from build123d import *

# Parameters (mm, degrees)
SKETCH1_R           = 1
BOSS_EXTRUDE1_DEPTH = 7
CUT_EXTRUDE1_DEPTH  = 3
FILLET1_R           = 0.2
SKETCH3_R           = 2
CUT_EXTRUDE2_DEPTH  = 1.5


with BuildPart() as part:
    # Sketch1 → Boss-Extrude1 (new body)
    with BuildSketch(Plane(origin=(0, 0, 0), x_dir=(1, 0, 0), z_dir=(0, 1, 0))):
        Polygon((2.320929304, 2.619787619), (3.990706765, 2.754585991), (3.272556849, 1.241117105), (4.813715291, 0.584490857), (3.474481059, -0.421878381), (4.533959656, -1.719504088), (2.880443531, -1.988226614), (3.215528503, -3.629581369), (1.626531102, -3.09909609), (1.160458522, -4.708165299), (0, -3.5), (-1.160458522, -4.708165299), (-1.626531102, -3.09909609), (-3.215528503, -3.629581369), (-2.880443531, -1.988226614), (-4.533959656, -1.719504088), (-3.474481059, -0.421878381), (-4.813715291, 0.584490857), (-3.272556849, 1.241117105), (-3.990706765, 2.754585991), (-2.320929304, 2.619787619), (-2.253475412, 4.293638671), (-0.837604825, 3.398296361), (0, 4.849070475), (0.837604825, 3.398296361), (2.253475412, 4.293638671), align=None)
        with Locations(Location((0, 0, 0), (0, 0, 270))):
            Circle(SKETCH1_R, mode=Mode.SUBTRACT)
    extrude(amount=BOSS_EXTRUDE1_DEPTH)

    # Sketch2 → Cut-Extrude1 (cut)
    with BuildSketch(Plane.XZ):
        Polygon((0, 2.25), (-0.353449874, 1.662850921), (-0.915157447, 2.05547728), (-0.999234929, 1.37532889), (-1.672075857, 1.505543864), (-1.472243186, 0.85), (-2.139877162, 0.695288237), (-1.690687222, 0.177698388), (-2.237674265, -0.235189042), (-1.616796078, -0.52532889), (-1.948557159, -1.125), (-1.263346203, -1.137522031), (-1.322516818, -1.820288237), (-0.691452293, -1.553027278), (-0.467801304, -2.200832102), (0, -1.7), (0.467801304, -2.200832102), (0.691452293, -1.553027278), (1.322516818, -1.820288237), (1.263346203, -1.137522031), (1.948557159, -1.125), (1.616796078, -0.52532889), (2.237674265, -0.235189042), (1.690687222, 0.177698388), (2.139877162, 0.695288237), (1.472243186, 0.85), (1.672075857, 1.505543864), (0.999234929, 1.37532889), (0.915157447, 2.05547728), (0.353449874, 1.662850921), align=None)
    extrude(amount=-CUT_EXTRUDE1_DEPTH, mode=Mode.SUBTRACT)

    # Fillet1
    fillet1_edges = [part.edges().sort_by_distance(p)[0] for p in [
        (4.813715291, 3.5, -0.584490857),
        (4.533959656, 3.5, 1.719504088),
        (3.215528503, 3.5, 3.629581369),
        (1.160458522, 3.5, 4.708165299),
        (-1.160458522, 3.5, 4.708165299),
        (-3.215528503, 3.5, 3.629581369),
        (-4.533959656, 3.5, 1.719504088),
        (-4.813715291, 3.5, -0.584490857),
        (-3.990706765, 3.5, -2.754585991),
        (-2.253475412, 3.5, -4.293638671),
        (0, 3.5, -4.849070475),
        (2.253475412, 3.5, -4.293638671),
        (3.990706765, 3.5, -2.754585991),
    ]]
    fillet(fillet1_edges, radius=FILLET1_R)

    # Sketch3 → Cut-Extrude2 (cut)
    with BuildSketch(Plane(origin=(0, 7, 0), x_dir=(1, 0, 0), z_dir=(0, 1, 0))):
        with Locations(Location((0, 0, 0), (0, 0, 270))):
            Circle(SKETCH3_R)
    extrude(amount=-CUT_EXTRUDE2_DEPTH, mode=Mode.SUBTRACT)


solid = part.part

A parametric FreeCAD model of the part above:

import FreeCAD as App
import Part
import Sketcher

V = App.Vector
Q = App.Units.Quantity


def edges_at(feature, points):
    """Names of the edges that pass closest to the given points."""
    edges = feature.Shape.Edges
    near = lambda p: min(range(len(edges)), key=lambda i: edges[i].distToShape(Part.Vertex(*p))[0])
    return sorted({f"Edge{near(p) + 1}" for p in points})

doc = App.newDocument("Part")
params = doc.addObject("Spreadsheet::Sheet", "Params")
for row, (alias, value) in enumerate([
    ("sketch1_diameter", "2 mm"),
    ("pad1_length", "7 mm"),
    ("pocket1_length", "3 mm"),
    ("fillet_radius", "0.2 mm"),
    ("sketch3_diameter", "4 mm"),
    ("pocket2_length", "1.5 mm"),
], start=1):
    params.set(f"A{row}", alias)
    params.set(f"B{row}", "=" + value)
    params.setAlias(f"B{row}", alias)

body = doc.addObject("PartDesign::Body", "Body")

sketch1 = body.newObject("Sketcher::SketchObject", "Sketch")
sketch1.AttachmentSupport = (doc.getObject("XZ_Plane"), [""])
sketch1.MapMode = "FlatFace"
sketch1.addGeometry(Part.LineSegment(V(4, -2.8, 0), V(2.3, -2.6, 0)), False)
sketch1.addGeometry(Part.LineSegment(V(2.3, -2.6, 0), V(2.3, -4.3, 0)), False)
sketch1.addGeometry(Part.LineSegment(V(2.3, -4.3, 0), V(0.8, -3.4, 0)), False)
sketch1.addGeometry(Part.LineSegment(V(0.8, -3.4, 0), V(0, -4.8, 0)), False)
sketch1.addGeometry(Part.LineSegment(V(0, -4.8, 0), V(-0.8, -3.4, 0)), False)
sketch1.addGeometry(Part.LineSegment(V(-0.8, -3.4, 0), V(-2.3, -4.3, 0)), False)
sketch1.addGeometry(Part.LineSegment(V(-2.3, -4.3, 0), V(-2.3, -2.6, 0)), False)
sketch1.addGeometry(Part.LineSegment(V(-2.3, -2.6, 0), V(-4, -2.8, 0)), False)
sketch1.addGeometry(Part.LineSegment(V(-4, -2.8, 0), V(-3.3, -1.2, 0)), False)
sketch1.addGeometry(Part.LineSegment(V(-3.3, -1.2, 0), V(-4.8, -0.6, 0)), False)
sketch1.addGeometry(Part.LineSegment(V(-4.8, -0.6, 0), V(-3.5, 0.4, 0)), False)
sketch1.addGeometry(Part.LineSegment(V(-3.5, 0.4, 0), V(-4.5, 1.7, 0)), False)
sketch1.addGeometry(Part.LineSegment(V(-4.5, 1.7, 0), V(-2.9, 2, 0)), False)
sketch1.addGeometry(Part.LineSegment(V(-2.9, 2, 0), V(-3.2, 3.6, 0)), False)
sketch1.addGeometry(Part.LineSegment(V(-3.2, 3.6, 0), V(-1.6, 3.1, 0)), False)
sketch1.addGeometry(Part.LineSegment(V(-1.6, 3.1, 0), V(-1.2, 4.7, 0)), False)
sketch1.addGeometry(Part.LineSegment(V(-1.2, 4.7, 0), V(0, 3.5, 0)), False)
sketch1.addGeometry(Part.LineSegment(V(0, 3.5, 0), V(1.2, 4.7, 0)), False)
sketch1.addGeometry(Part.LineSegment(V(1.2, 4.7, 0), V(1.6, 3.1, 0)), False)
sketch1.addGeometry(Part.LineSegment(V(1.6, 3.1, 0), V(3.2, 3.6, 0)), False)
sketch1.addGeometry(Part.LineSegment(V(3.2, 3.6, 0), V(2.9, 2, 0)), False)
sketch1.addGeometry(Part.LineSegment(V(2.9, 2, 0), V(4.5, 1.7, 0)), False)
sketch1.addGeometry(Part.LineSegment(V(4.5, 1.7, 0), V(3.5, 0.4, 0)), False)
sketch1.addGeometry(Part.LineSegment(V(3.5, 0.4, 0), V(4.8, -0.6, 0)), False)
sketch1.addGeometry(Part.LineSegment(V(4.8, -0.6, 0), V(3.3, -1.2, 0)), False)
sketch1.addGeometry(Part.LineSegment(V(3.3, -1.2, 0), V(4, -2.8, 0)), False)
sketch1.addGeometry(Part.Circle(V(0, 0, 0), V(0, 0, 1), 1), False)
sketch1.addConstraint(Sketcher.Constraint("Coincident", 0, 2, 1, 1))
sketch1.addConstraint(Sketcher.Constraint("Coincident", 1, 2, 2, 1))
sketch1.addConstraint(Sketcher.Constraint("Coincident", 2, 2, 3, 1))
sketch1.addConstraint(Sketcher.Constraint("Coincident", 3, 2, 4, 1))
sketch1.addConstraint(Sketcher.Constraint("Coincident", 4, 2, 5, 1))
sketch1.addConstraint(Sketcher.Constraint("Coincident", 5, 2, 6, 1))
sketch1.addConstraint(Sketcher.Constraint("Coincident", 6, 2, 7, 1))
sketch1.addConstraint(Sketcher.Constraint("Coincident", 7, 2, 8, 1))
sketch1.addConstraint(Sketcher.Constraint("Coincident", 8, 2, 9, 1))
sketch1.addConstraint(Sketcher.Constraint("Coincident", 9, 2, 10, 1))
sketch1.addConstraint(Sketcher.Constraint("Coincident", 10, 2, 11, 1))
sketch1.addConstraint(Sketcher.Constraint("Coincident", 11, 2, 12, 1))
sketch1.addConstraint(Sketcher.Constraint("Coincident", 12, 2, 13, 1))
sketch1.addConstraint(Sketcher.Constraint("Coincident", 13, 2, 14, 1))
sketch1.addConstraint(Sketcher.Constraint("Coincident", 14, 2, 15, 1))
sketch1.addConstraint(Sketcher.Constraint("Coincident", 15, 2, 16, 1))
sketch1.addConstraint(Sketcher.Constraint("Coincident", 16, 2, 17, 1))
sketch1.addConstraint(Sketcher.Constraint("Coincident", 17, 2, 18, 1))
sketch1.addConstraint(Sketcher.Constraint("Coincident", 18, 2, 19, 1))
sketch1.addConstraint(Sketcher.Constraint("Coincident", 19, 2, 20, 1))
sketch1.addConstraint(Sketcher.Constraint("Coincident", 20, 2, 21, 1))
sketch1.addConstraint(Sketcher.Constraint("Coincident", 21, 2, 22, 1))
sketch1.addConstraint(Sketcher.Constraint("Coincident", 22, 2, 23, 1))
sketch1.addConstraint(Sketcher.Constraint("Coincident", 23, 2, 24, 1))
sketch1.addConstraint(Sketcher.Constraint("Coincident", 24, 2, 25, 1))
sketch1.addConstraint(Sketcher.Constraint("Coincident", 25, 2, 0, 1))
sketch1.addConstraint(Sketcher.Constraint("Coincident", 26, 3, -1, 1))
sketch1.addConstraint(Sketcher.Constraint("Symmetric", 2, 2, 4, 2, -2))
sketch1.addConstraint(Sketcher.Constraint("Symmetric", 1, 2, 5, 2, -2))
sketch1.addConstraint(Sketcher.Constraint("Symmetric", 0, 2, 6, 2, -2))
sketch1.addConstraint(Sketcher.Constraint("Symmetric", 15, 2, 17, 2, -2))
sketch1.addConstraint(Sketcher.Constraint("Symmetric", 14, 2, 18, 2, -2))
sketch1.addConstraint(Sketcher.Constraint("Symmetric", 13, 2, 19, 2, -2))
sketch1.addConstraint(Sketcher.Constraint("Symmetric", 12, 2, 20, 2, -2))
sketch1.addConstraint(Sketcher.Constraint("Symmetric", 11, 2, 21, 2, -2))
sketch1.addConstraint(Sketcher.Constraint("Symmetric", 10, 2, 22, 2, -2))
sketch1.addConstraint(Sketcher.Constraint("Symmetric", 9, 2, 23, 2, -2))
sketch1.addConstraint(Sketcher.Constraint("Symmetric", 8, 2, 24, 2, -2))
sketch1.addConstraint(Sketcher.Constraint("Symmetric", 7, 2, 25, 2, -2))
sketch1.addConstraint(Sketcher.Constraint("PointOnObject", 3, 2, -2))
sketch1.addConstraint(Sketcher.Constraint("PointOnObject", 16, 2, -2))
sketch1.addConstraint(Sketcher.Constraint("Equal", 0, 1))
sketch1.addConstraint(Sketcher.Constraint("Equal", 1, 2))
sketch1.addConstraint(Sketcher.Constraint("Equal", 2, 3))
sketch1.addConstraint(Sketcher.Constraint("Equal", 7, 8))
sketch1.addConstraint(Sketcher.Constraint("Equal", 8, 9))
sketch1.addConstraint(Sketcher.Constraint("Equal", 9, 10))
sketch1.addConstraint(Sketcher.Constraint("Equal", 10, 11))
sketch1.addConstraint(Sketcher.Constraint("Equal", 11, 12))
sketch1.addConstraint(Sketcher.Constraint("Equal", 12, 13))
sketch1.addConstraint(Sketcher.Constraint("Equal", 13, 14))
sketch1.addConstraint(Sketcher.Constraint("Equal", 14, 15))
sketch1.addConstraint(Sketcher.Constraint("Equal", 15, 16))
sketch1.addConstraint(Sketcher.Constraint("Diameter", 26, Q("2 mm")))
sketch1.addConstraint(Sketcher.Constraint("Angle", 3, Q("-120 deg")))
sketch1.addConstraint(Sketcher.Constraint("DistanceY", -1, 1, 16, 2, Q("3.5 mm")))
sketch1.addConstraint(Sketcher.Constraint("DistanceY", 7, 2, 6, 2, Q("0.134798 mm")))
sketch1.addConstraint(Sketcher.Constraint("DistanceX", 7, 2, 4, 2, Q("3.153102 mm")))
sketch1.addConstraint(Sketcher.Constraint("DistanceX", 11, 2, 15, 2, Q("3.373501 mm")))
sketch1.addConstraint(Sketcher.Constraint("Distance", 0, Q("1.67521 mm")))
sketch1.addConstraint(Sketcher.Constraint("DistanceY", 1, 2, -1, 1, Q("4.293639 mm")))
sketch1.addConstraint(Sketcher.Constraint("DistanceY", 3, 2, -1, 1, Q("4.84907 mm")))
sketch1.addConstraint(Sketcher.Constraint("DistanceY", 9, 2, -1, 1, Q("0.584491 mm")))
sketch1.addConstraint(Sketcher.Constraint("DistanceX", 10, 2, -1, 1, Q("3.474481 mm")))
sketch1.addConstraint(Sketcher.Constraint("DistanceY", -1, 1, 10, 2, Q("0.421878 mm")))
sketch1.addConstraint(Sketcher.Constraint("DistanceX", 11, 2, -1, 1, Q("4.53396 mm")))
sketch1.addConstraint(Sketcher.Constraint("DistanceX", 13, 2, -1, 1, Q("3.215529 mm")))
sketch1.addConstraint(Sketcher.Constraint("DistanceY", -1, 1, 13, 2, Q("3.629581 mm")))
sketch1.setExpression("Constraints[53]", "Params.sketch1_diameter")
pad1 = body.newObject("PartDesign::Pad", "Pad")
pad1.Profile = sketch1
pad1.setExpression("Length", "Params.pad1_length")
pad1.Reversed = True

sketch2 = body.newObject("Sketcher::SketchObject", "Sketch001")
sketch2.AttachmentSupport = (doc.getObject("XZ_Plane"), [""])
sketch2.MapMode = "FlatFace"
sketch2.addGeometry(Part.LineSegment(V(0, 2.2, 0), V(-0.4, 1.7, 0)), False)
sketch2.addGeometry(Part.LineSegment(V(-0.4, 1.7, 0), V(-0.9, 2.1, 0)), False)
sketch2.addGeometry(Part.LineSegment(V(-0.9, 2.1, 0), V(-1, 1.4, 0)), False)
sketch2.addGeometry(Part.LineSegment(V(-1, 1.4, 0), V(-1.7, 1.5, 0)), False)
sketch2.addGeometry(Part.LineSegment(V(-1.7, 1.5, 0), V(-1.5, 0.8, 0)), False)
sketch2.addGeometry(Part.LineSegment(V(-1.5, 0.8, 0), V(-2.1, 0.7, 0)), False)
sketch2.addGeometry(Part.LineSegment(V(-2.1, 0.7, 0), V(-1.7, 0.2, 0)), False)
sketch2.addGeometry(Part.LineSegment(V(-1.7, 0.2, 0), V(-2.2, -0.2, 0)), False)
sketch2.addGeometry(Part.LineSegment(V(-2.2, -0.2, 0), V(-1.6, -0.5, 0)), False)
sketch2.addGeometry(Part.LineSegment(V(-1.6, -0.5, 0), V(-1.9, -1.1, 0)), False)
sketch2.addGeometry(Part.LineSegment(V(-1.9, -1.1, 0), V(-1.3, -1.1, 0)), False)
sketch2.addGeometry(Part.LineSegment(V(-1.3, -1.1, 0), V(-1.3, -1.8, 0)), False)
sketch2.addGeometry(Part.LineSegment(V(-1.3, -1.8, 0), V(-0.7, -1.6, 0)), False)
sketch2.addGeometry(Part.LineSegment(V(-0.7, -1.6, 0), V(-0.5, -2.2, 0)), False)
sketch2.addGeometry(Part.LineSegment(V(-0.5, -2.2, 0), V(0, -1.7, 0)), False)
sketch2.addGeometry(Part.LineSegment(V(0, -1.7, 0), V(0.5, -2.2, 0)), False)
sketch2.addGeometry(Part.LineSegment(V(0.5, -2.2, 0), V(0.7, -1.6, 0)), False)
sketch2.addGeometry(Part.LineSegment(V(0.7, -1.6, 0), V(1.3, -1.8, 0)), False)
sketch2.addGeometry(Part.LineSegment(V(1.3, -1.8, 0), V(1.3, -1.1, 0)), False)
sketch2.addGeometry(Part.LineSegment(V(1.3, -1.1, 0), V(1.9, -1.1, 0)), False)
sketch2.addGeometry(Part.LineSegment(V(1.9, -1.1, 0), V(1.6, -0.5, 0)), False)
sketch2.addGeometry(Part.LineSegment(V(1.6, -0.5, 0), V(2.2, -0.2, 0)), False)
sketch2.addGeometry(Part.LineSegment(V(2.2, -0.2, 0), V(1.7, 0.2, 0)), False)
sketch2.addGeometry(Part.LineSegment(V(1.7, 0.2, 0), V(2.1, 0.7, 0)), False)
sketch2.addGeometry(Part.LineSegment(V(2.1, 0.7, 0), V(1.5, 0.8, 0)), False)
sketch2.addGeometry(Part.LineSegment(V(1.5, 0.8, 0), V(1.7, 1.5, 0)), False)
sketch2.addGeometry(Part.LineSegment(V(1.7, 1.5, 0), V(1, 1.4, 0)), False)
sketch2.addGeometry(Part.LineSegment(V(1, 1.4, 0), V(0.9, 2.1, 0)), False)
sketch2.addGeometry(Part.LineSegment(V(0.9, 2.1, 0), V(0.4, 1.7, 0)), False)
sketch2.addGeometry(Part.LineSegment(V(0.4, 1.7, 0), V(0, 2.2, 0)), False)
sketch2.addConstraint(Sketcher.Constraint("Coincident", 0, 2, 1, 1))
sketch2.addConstraint(Sketcher.Constraint("Coincident", 1, 2, 2, 1))
sketch2.addConstraint(Sketcher.Constraint("Coincident", 2, 2, 3, 1))
sketch2.addConstraint(Sketcher.Constraint("Coincident", 3, 2, 4, 1))
sketch2.addConstraint(Sketcher.Constraint("Coincident", 4, 2, 5, 1))
sketch2.addConstraint(Sketcher.Constraint("Coincident", 5, 2, 6, 1))
sketch2.addConstraint(Sketcher.Constraint("Coincident", 6, 2, 7, 1))
sketch2.addConstraint(Sketcher.Constraint("Coincident", 7, 2, 8, 1))
sketch2.addConstraint(Sketcher.Constraint("Coincident", 8, 2, 9, 1))
sketch2.addConstraint(Sketcher.Constraint("Coincident", 9, 2, 10, 1))
sketch2.addConstraint(Sketcher.Constraint("Coincident", 10, 2, 11, 1))
sketch2.addConstraint(Sketcher.Constraint("Coincident", 11, 2, 12, 1))
sketch2.addConstraint(Sketcher.Constraint("Coincident", 12, 2, 13, 1))
sketch2.addConstraint(Sketcher.Constraint("Coincident", 13, 2, 14, 1))
sketch2.addConstraint(Sketcher.Constraint("Coincident", 14, 2, 15, 1))
sketch2.addConstraint(Sketcher.Constraint("Coincident", 15, 2, 16, 1))
sketch2.addConstraint(Sketcher.Constraint("Coincident", 16, 2, 17, 1))
sketch2.addConstraint(Sketcher.Constraint("Coincident", 17, 2, 18, 1))
sketch2.addConstraint(Sketcher.Constraint("Coincident", 18, 2, 19, 1))
sketch2.addConstraint(Sketcher.Constraint("Coincident", 19, 2, 20, 1))
sketch2.addConstraint(Sketcher.Constraint("Coincident", 20, 2, 21, 1))
sketch2.addConstraint(Sketcher.Constraint("Coincident", 21, 2, 22, 1))
sketch2.addConstraint(Sketcher.Constraint("Coincident", 22, 2, 23, 1))
sketch2.addConstraint(Sketcher.Constraint("Coincident", 23, 2, 24, 1))
sketch2.addConstraint(Sketcher.Constraint("Coincident", 24, 2, 25, 1))
sketch2.addConstraint(Sketcher.Constraint("Coincident", 25, 2, 26, 1))
sketch2.addConstraint(Sketcher.Constraint("Coincident", 26, 2, 27, 1))
sketch2.addConstraint(Sketcher.Constraint("Coincident", 27, 2, 28, 1))
sketch2.addConstraint(Sketcher.Constraint("Coincident", 28, 2, 29, 1))
sketch2.addConstraint(Sketcher.Constraint("Coincident", 29, 2, 0, 1))
sketch2.addConstraint(Sketcher.Constraint("Symmetric", 13, 2, 15, 2, -2))
sketch2.addConstraint(Sketcher.Constraint("Symmetric", 12, 2, 16, 2, -2))
sketch2.addConstraint(Sketcher.Constraint("Symmetric", 11, 2, 17, 2, -2))
sketch2.addConstraint(Sketcher.Constraint("Symmetric", 10, 2, 18, 2, -2))
sketch2.addConstraint(Sketcher.Constraint("Symmetric", 9, 2, 19, 2, -2))
sketch2.addConstraint(Sketcher.Constraint("Symmetric", 8, 2, 20, 2, -2))
sketch2.addConstraint(Sketcher.Constraint("Symmetric", 7, 2, 21, 2, -2))
sketch2.addConstraint(Sketcher.Constraint("Symmetric", 6, 2, 22, 2, -2))
sketch2.addConstraint(Sketcher.Constraint("Symmetric", 5, 2, 23, 2, -2))
sketch2.addConstraint(Sketcher.Constraint("Symmetric", 4, 2, 24, 2, -2))
sketch2.addConstraint(Sketcher.Constraint("Symmetric", 3, 2, 25, 2, -2))
sketch2.addConstraint(Sketcher.Constraint("Symmetric", 2, 2, 26, 2, -2))
sketch2.addConstraint(Sketcher.Constraint("Symmetric", 1, 2, 27, 2, -2))
sketch2.addConstraint(Sketcher.Constraint("Symmetric", 0, 2, 28, 2, -2))
sketch2.addConstraint(Sketcher.Constraint("PointOnObject", 14, 2, -2))
sketch2.addConstraint(Sketcher.Constraint("PointOnObject", 29, 2, -2))
sketch2.addConstraint(Sketcher.Constraint("Equal", 0, 1))
sketch2.addConstraint(Sketcher.Constraint("Equal", 1, 2))
sketch2.addConstraint(Sketcher.Constraint("Equal", 2, 3))
sketch2.addConstraint(Sketcher.Constraint("Equal", 3, 4))
sketch2.addConstraint(Sketcher.Constraint("Equal", 4, 5))
sketch2.addConstraint(Sketcher.Constraint("Equal", 5, 6))
sketch2.addConstraint(Sketcher.Constraint("Equal", 6, 7))
sketch2.addConstraint(Sketcher.Constraint("Equal", 7, 8))
sketch2.addConstraint(Sketcher.Constraint("Equal", 8, 9))
sketch2.addConstraint(Sketcher.Constraint("Equal", 9, 10))
sketch2.addConstraint(Sketcher.Constraint("Equal", 10, 11))
sketch2.addConstraint(Sketcher.Constraint("Equal", 11, 12))
sketch2.addConstraint(Sketcher.Constraint("Equal", 12, 13))
sketch2.addConstraint(Sketcher.Constraint("Equal", 13, 14))
sketch2.addConstraint(Sketcher.Constraint("DistanceY", 14, 2, -1, 1, Q("1.7 mm")))
sketch2.addConstraint(Sketcher.Constraint("DistanceY", -1, 1, 4, 2, Q("0.85 mm")))
sketch2.addConstraint(Sketcher.Constraint("DistanceY", -1, 1, 29, 2, Q("2.25 mm")))
sketch2.addConstraint(Sketcher.Constraint("DistanceY", 9, 2, -1, 1, Q("1.125 mm")))
sketch2.addConstraint(Sketcher.Constraint("DistanceY", -1, 1, 6, 2, Q("0.177698 mm")))
sketch2.addConstraint(Sketcher.Constraint("DistanceX", 13, 2, -1, 1, Q("0.467801 mm")))
sketch2.addConstraint(Sketcher.Constraint("DistanceX", 5, 2, 3, 2, Q("0.467801 mm")))
sketch2.addConstraint(Sketcher.Constraint("DistanceX", 7, 2, 3, 2, Q("0.565598 mm")))
sketch2.addConstraint(Sketcher.Constraint("DistanceY", 11, 2, 7, 2, Q("1.585099 mm")))
sketch2.addConstraint(Sketcher.Constraint("DistanceY", 12, 2, 8, 2, Q("1.027698 mm")))
sketch2.addConstraint(Sketcher.Constraint("DistanceX", 10, 2, 16, 2, Q("1.954798 mm")))
sketch2.addConstraint(Sketcher.Constraint("DistanceX", 0, 2, 28, 2, Q("0.7069 mm")))
sketch2.addConstraint(Sketcher.Constraint("DistanceY", -1, 1, 0, 2, Q("1.662851 mm")))
sketch2.addConstraint(Sketcher.Constraint("DistanceY", -1, 1, 2, 2, Q("1.375329 mm")))
sketch2.addConstraint(Sketcher.Constraint("DistanceY", -1, 1, 5, 2, Q("0.695288 mm")))
sketch2.addConstraint(Sketcher.Constraint("DistanceY", 8, 2, -1, 1, Q("0.525329 mm")))
pocket1 = body.newObject("PartDesign::Pocket", "Pocket")
pocket1.Profile = sketch2
pocket1.setExpression("Length", "Params.pocket1_length")
doc.recompute()

fillet = body.newObject("PartDesign::Fillet", "Fillet")
fillet.Base = (pocket1, edges_at(pocket1, [
    (4.814, 3.5, -0.584),
    (4.534, 3.5, 1.72),
    (3.216, 3.5, 3.63),
    (1.16, 3.5, 4.708),
    (-1.16, 3.5, 4.708),
    (-3.216, 3.5, 3.63),
    (-4.534, 3.5, 1.72),
    (-4.814, 3.5, -0.584),
    (-3.991, 3.5, -2.755),
    (-2.253, 3.5, -4.294),
    (0, 3.5, -4.849),
    (2.253, 3.5, -4.294),
    (3.991, 3.5, -2.755),
]))
fillet.setExpression("Radius", "Params.fillet_radius")

sketch3 = body.newObject("Sketcher::SketchObject", "Sketch002")
sketch3.AttachmentSupport = (doc.getObject("XZ_Plane"), [""])
sketch3.MapMode = "FlatFace"
sketch3.AttachmentOffset = App.Placement(V(0, 0, -7), App.Rotation())
sketch3.addGeometry(Part.Circle(V(0, 0, 0), V(0, 0, 1), 2), False)
sketch3.addConstraint(Sketcher.Constraint("Coincident", 0, 3, -1, 1))
sketch3.addConstraint(Sketcher.Constraint("Diameter", 0, Q("4 mm")))
sketch3.setExpression("Constraints[1]", "Params.sketch3_diameter")
pocket2 = body.newObject("PartDesign::Pocket", "Pocket001")
pocket2.Profile = sketch3
pocket2.setExpression("Length", "Params.pocket2_length")
pocket2.Reversed = True

doc.recompute()
